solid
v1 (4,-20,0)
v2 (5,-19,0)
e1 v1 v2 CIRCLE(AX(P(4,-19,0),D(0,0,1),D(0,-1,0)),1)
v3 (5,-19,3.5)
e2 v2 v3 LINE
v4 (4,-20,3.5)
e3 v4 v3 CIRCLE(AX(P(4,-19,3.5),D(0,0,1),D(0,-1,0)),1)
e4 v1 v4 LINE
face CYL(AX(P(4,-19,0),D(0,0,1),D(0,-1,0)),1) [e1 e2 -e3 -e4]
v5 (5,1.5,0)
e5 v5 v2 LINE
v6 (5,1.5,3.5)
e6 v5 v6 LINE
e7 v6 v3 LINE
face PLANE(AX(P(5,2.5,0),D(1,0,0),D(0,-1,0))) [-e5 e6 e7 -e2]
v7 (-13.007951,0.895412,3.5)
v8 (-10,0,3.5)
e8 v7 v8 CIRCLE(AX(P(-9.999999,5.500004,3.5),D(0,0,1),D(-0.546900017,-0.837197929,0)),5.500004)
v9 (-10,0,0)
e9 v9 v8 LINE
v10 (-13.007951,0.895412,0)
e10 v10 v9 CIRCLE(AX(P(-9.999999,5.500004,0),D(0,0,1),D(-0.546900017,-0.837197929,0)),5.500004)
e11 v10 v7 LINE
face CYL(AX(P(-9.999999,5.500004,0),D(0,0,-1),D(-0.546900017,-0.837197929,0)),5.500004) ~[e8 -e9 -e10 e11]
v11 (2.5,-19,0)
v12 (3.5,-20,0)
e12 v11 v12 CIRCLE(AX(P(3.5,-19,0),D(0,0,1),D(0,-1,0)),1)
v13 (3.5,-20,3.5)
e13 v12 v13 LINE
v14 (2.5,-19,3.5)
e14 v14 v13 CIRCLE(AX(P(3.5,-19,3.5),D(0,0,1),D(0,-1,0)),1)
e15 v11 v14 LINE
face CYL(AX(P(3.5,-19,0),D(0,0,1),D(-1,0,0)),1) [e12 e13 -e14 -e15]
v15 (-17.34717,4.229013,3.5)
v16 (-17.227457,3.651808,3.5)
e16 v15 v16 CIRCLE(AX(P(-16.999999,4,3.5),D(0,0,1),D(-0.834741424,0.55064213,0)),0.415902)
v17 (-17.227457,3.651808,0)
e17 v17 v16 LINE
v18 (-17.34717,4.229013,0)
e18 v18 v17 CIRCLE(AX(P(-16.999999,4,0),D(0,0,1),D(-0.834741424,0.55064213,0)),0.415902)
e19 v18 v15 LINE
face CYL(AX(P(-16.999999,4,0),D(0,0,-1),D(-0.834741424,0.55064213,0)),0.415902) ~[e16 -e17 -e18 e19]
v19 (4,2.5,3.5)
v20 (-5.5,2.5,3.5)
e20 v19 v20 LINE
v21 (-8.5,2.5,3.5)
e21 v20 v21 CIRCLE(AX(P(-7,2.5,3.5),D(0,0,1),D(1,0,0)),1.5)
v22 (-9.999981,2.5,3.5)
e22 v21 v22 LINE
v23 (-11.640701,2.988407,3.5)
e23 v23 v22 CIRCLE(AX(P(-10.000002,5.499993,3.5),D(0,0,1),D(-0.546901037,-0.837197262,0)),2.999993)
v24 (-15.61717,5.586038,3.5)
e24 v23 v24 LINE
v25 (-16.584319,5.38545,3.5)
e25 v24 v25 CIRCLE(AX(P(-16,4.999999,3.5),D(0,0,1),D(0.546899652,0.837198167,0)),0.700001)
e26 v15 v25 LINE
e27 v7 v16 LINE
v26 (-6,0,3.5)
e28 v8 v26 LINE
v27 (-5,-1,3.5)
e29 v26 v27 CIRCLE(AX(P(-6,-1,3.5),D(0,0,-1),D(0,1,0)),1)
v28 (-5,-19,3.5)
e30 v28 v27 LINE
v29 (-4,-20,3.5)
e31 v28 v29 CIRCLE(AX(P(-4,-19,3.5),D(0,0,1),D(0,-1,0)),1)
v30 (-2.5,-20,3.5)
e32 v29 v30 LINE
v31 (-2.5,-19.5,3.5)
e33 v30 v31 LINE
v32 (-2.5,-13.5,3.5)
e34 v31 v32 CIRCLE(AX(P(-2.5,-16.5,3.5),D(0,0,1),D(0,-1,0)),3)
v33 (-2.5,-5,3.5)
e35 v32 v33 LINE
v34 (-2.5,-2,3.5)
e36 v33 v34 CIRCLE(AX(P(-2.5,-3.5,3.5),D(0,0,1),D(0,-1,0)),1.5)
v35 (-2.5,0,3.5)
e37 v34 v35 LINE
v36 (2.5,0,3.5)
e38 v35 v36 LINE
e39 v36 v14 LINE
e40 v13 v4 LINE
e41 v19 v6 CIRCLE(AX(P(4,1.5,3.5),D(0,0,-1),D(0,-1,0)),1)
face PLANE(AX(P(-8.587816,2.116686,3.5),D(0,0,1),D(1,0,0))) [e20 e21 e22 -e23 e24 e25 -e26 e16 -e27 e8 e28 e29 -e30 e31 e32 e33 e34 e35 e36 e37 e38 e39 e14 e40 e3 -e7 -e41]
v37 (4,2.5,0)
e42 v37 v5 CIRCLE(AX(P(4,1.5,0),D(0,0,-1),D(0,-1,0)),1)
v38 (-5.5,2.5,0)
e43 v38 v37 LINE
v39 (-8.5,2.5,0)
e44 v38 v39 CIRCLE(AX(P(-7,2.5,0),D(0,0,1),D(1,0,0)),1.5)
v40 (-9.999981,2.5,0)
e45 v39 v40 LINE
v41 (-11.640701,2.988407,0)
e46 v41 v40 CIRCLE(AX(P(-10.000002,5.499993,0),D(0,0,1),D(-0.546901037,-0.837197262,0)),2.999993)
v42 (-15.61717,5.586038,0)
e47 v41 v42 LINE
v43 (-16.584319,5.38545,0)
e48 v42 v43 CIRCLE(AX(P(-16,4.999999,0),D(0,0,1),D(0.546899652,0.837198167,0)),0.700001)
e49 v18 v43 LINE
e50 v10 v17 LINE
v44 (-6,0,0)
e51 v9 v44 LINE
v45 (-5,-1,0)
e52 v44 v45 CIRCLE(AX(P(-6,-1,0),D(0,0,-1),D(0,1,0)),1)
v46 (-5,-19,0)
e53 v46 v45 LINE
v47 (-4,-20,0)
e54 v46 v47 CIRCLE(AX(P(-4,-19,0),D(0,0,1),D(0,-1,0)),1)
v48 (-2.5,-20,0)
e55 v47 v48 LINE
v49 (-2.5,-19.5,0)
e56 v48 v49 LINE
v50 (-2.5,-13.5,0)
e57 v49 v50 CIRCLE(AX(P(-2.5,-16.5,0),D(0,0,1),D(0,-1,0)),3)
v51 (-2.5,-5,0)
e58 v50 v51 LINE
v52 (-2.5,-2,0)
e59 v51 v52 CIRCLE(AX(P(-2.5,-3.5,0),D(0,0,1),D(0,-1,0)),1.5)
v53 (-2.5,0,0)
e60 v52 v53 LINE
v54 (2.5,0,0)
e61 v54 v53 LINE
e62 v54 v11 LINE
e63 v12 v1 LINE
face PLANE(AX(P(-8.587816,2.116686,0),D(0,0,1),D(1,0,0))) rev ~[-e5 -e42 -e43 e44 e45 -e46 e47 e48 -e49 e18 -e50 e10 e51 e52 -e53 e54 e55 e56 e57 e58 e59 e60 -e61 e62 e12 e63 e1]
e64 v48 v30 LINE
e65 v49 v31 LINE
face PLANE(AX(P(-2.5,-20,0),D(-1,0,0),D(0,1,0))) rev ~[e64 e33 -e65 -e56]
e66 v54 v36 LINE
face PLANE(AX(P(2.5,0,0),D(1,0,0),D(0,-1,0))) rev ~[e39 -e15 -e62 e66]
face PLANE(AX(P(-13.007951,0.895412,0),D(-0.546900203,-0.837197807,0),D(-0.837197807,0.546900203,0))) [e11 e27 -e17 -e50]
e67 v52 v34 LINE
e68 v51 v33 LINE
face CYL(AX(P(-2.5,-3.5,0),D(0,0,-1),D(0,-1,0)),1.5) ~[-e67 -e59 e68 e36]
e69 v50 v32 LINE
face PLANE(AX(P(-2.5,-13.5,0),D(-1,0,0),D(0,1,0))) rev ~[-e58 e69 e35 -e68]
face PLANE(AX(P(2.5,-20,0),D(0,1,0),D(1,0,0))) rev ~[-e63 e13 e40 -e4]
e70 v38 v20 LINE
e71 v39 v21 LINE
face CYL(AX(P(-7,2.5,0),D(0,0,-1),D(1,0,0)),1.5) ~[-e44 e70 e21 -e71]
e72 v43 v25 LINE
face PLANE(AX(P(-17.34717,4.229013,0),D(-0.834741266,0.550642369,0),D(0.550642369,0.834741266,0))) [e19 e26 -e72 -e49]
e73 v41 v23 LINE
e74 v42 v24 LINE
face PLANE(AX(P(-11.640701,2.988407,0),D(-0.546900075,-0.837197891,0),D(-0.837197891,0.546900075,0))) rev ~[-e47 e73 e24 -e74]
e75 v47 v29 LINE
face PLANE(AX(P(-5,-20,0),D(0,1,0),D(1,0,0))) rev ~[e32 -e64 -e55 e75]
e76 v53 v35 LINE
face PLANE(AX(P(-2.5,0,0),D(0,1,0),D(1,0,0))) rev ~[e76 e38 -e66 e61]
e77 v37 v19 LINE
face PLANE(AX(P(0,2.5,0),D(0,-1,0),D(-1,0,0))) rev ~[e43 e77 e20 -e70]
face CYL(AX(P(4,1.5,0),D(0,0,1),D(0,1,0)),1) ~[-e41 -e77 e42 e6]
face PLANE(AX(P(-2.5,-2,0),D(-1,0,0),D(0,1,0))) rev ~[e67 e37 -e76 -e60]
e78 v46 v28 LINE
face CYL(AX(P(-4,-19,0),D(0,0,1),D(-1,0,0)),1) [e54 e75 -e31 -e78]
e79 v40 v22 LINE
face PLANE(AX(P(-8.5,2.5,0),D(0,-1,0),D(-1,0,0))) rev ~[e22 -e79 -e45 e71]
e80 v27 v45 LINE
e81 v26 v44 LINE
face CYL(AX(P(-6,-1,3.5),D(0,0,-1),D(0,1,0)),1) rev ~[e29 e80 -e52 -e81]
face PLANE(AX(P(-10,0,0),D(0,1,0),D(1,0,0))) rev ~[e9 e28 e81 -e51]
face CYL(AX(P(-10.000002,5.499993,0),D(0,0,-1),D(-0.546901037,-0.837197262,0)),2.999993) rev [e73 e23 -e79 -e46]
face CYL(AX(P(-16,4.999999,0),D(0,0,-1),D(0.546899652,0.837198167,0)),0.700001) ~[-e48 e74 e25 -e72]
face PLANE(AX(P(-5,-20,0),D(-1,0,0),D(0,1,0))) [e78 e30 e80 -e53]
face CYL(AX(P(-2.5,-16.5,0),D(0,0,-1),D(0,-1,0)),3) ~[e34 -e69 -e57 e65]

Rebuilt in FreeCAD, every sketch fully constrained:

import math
import FreeCAD as App
import Part
import Sketcher

V = App.Vector


def edges_at(feature, points):
    """Names of the edges that pass closest to the given points."""
    edges = feature.Shape.Edges
    near = lambda p: min(range(len(edges)), key=lambda i: edges[i].distToShape(Part.Vertex(*p))[0])
    return sorted({f"Edge{near(p) + 1}" for p in points})

doc = App.newDocument("Part")
body = doc.addObject("PartDesign::Body", "Body")

# Sketch on XY plane
sketch1 = body.newObject("Sketcher::SketchObject", "Sketch")
sketch1.AttachmentSupport = (doc.getObject("XY_Plane"), [""])
sketch1.MapMode = "FlatFace"
sketch1.addGeometry(Part.LineSegment(V(-2.5, 0, 0), V(2.5, 0, 0)), False)
sketch1.addGeometry(Part.LineSegment(V(2.5, 0, 0), V(2.5, -20, 0)), False)
sketch1.addGeometry(Part.LineSegment(V(2.5, -20, 0), V(5, -20, 0)), False)
sketch1.addGeometry(Part.LineSegment(V(5, -20, 0), V(5, 2.5, 0)), False)
sketch1.addGeometry(Part.LineSegment(V(5, 2.5, 0), V(-5, 2.5, 0)), False)
sketch1.addGeometry(Part.LineSegment(V(-5, 2.5, 0), V(-5, -20, 0)), False)
sketch1.addGeometry(Part.LineSegment(V(-5, -20, 0), V(-2.5, -20, 0)), False)
sketch1.addGeometry(Part.LineSegment(V(-2.5, -20, 0), V(-2.5, -19.5, 0)), False)
sketch1.addGeometry(Part.ArcOfCircle(Part.Circle(V(-2.5, -16.5, 0), V(0, 0, 1), 3), math.radians(-90), math.radians(90)), False)
sketch1.addGeometry(Part.LineSegment(V(-2.5, -13.5, 0), V(-2.5, -5, 0)), False)
sketch1.addGeometry(Part.ArcOfCircle(Part.Circle(V(-2.5, -3.5, 0), V(0, 0, 1), 1.5), math.radians(-90), math.radians(90)), False)
sketch1.addGeometry(Part.LineSegment(V(-2.5, -2, 0), V(-2.5, 0, 0)), False)
sketch1.addConstraint(Sketcher.Constraint("Coincident", 0, 2, 1, 1))
sketch1.addConstraint(Sketcher.Constraint("Coincident", 1, 2, 2, 1))
sketch1.addConstraint(Sketcher.Constraint("Coincident", 2, 2, 3, 1))
sketch1.addConstraint(Sketcher.Constraint("Coincident", 3, 2, 4, 1))
sketch1.addConstraint(Sketcher.Constraint("Coincident", 4, 2, 5, 1))
sketch1.addConstraint(Sketcher.Constraint("Coincident", 5, 2, 6, 1))
sketch1.addConstraint(Sketcher.Constraint("Coincident", 6, 2, 7, 1))
sketch1.addConstraint(Sketcher.Constraint("Coincident", 7, 2, 8, 1))
sketch1.addConstraint(Sketcher.Constraint("Coincident", 8, 2, 9, 1))
sketch1.addConstraint(Sketcher.Constraint("Coincident", 9, 2, 10, 1))
sketch1.addConstraint(Sketcher.Constraint("Coincident", 10, 2, 11, 1))
sketch1.addConstraint(Sketcher.Constraint("Coincident", 11, 2, 0, 1))
sketch1.addConstraint(Sketcher.Constraint("Horizontal", 0))
sketch1.addConstraint(Sketcher.Constraint("Vertical", 1))
sketch1.addConstraint(Sketcher.Constraint("Horizontal", 2))
sketch1.addConstraint(Sketcher.Constraint("Vertical", 3))
sketch1.addConstraint(Sketcher.Constraint("Horizontal", 4))
sketch1.addConstraint(Sketcher.Constraint("Vertical", 5))
sketch1.addConstraint(Sketcher.Constraint("Horizontal", 6))
sketch1.addConstraint(Sketcher.Constraint("Vertical", 7))
sketch1.addConstraint(Sketcher.Constraint("Vertical", 9))
sketch1.addConstraint(Sketcher.Constraint("Vertical", 11))
sketch1.addConstraint(Sketcher.Constraint("Symmetric", 0, 2, 11, 2, -1, 1))
sketch1.addConstraint(Sketcher.Constraint("Symmetric", 2, 2, 5, 2, -2))
sketch1.addConstraint(Sketcher.Constraint("Vertical", 8, 3, 10, 3))
sketch1.addConstraint(Sketcher.Constraint("Vertical", 10, 3, 6, 2))
sketch1.addConstraint(Sketcher.Constraint("Vertical", 7, 2, 8, 2))
sketch1.addConstraint(Sketcher.Constraint("Vertical", 9, 2, 10, 2))
sketch1.addConstraint(Sketcher.Constraint("Radius", 8, 3.0))
sketch1.addConstraint(Sketcher.Constraint("Radius", 10, 1.5))
sketch1.addConstraint(Sketcher.Constraint("DistanceX", 0, 1, 0, 2, 5.0))
sketch1.addConstraint(Sketcher.Constraint("DistanceX", 4, 2, 4, 1, 10.0))
sketch1.addConstraint(Sketcher.Constraint("DistanceY", 1, 2, 1, 1, 20.0))
sketch1.addConstraint(Sketcher.Constraint("DistanceY", 11, 1, 11, 2, 2.0))
sketch1.addConstraint(Sketcher.Constraint("DistanceY", 3, 1, 3, 2, 22.5))
sketch1.addConstraint(Sketcher.Constraint("DistanceY", 7, 1, 7, 2, 0.5))
pad1 = body.newObject("PartDesign::Pad", "Pad")
pad1.Profile = sketch1
pad1.Length = 3.5

# Sketch on XY plane
sketch2 = body.newObject("Sketcher::SketchObject", "Sketch001")
sketch2.AttachmentSupport = (doc.getObject("XY_Plane"), [""])
sketch2.MapMode = "FlatFace"
sketch2.addGeometry(Part.LineSegment(V(-10, 0, 0), V(0, 0, 0)), False)
sketch2.addGeometry(Part.LineSegment(V(0, 0, 0), V(0, 2.5, 0)), False)
sketch2.addGeometry(Part.LineSegment(V(0, 2.5, 0), V(-5.5, 2.5, 0)), False)
sketch2.addGeometry(Part.ArcOfCircle(Part.Circle(V(-7, 2.5, 0), V(0, 0, 1), 1.5), math.radians(0), math.radians(180)), False)
sketch2.addGeometry(Part.LineSegment(V(-8.5, 2.5, 0), V(-9.999981, 2.5, 0)), False)
sketch2.addGeometry(Part.ArcOfCircle(Part.Circle(V(-10.000002, 5.499993, 0), V(0, 0, 1), 2.999993), math.radians(-123.15467), math.radians(-89.9996)), False)
sketch2.addGeometry(Part.LineSegment(V(-11.640701, 2.988407, 0), V(-15.61717, 5.586038, 0)), False)
sketch2.addGeometry(Part.ArcOfCircle(Part.Circle(V(-16, 4.999999, 0), V(0, 0, 1), 0.700001), math.radians(56.845425), math.radians(146.588778)), False)
sketch2.addGeometry(Part.LineSegment(V(-16.584319, 5.38545, 0), V(-17.34717, 4.229013, 0)), False)
sketch2.addGeometry(Part.ArcOfCircle(Part.Circle(V(-16.999999, 4, 0), V(0, 0, 1), 0.415902), math.radians(146.588923), math.radians(236.845262)), False)
sketch2.addGeometry(Part.LineSegment(V(-17.227457, 3.651808, 0), V(-13.007951, 0.895412, 0)), False)
sketch2.addGeometry(Part.ArcOfCircle(Part.Circle(V(-9.999999, 5.500004, 0), V(0, 0, 1), 5.500004), math.radians(-123.1546), math.radians(-90.000012)), False)
sketch2.addConstraint(Sketcher.Constraint("Coincident", 0, 2, 1, 1))
sketch2.addConstraint(Sketcher.Constraint("Coincident", 1, 2, 2, 1))
sketch2.addConstraint(Sketcher.Constraint("Coincident", 2, 2, 3, 1))
sketch2.addConstraint(Sketcher.Constraint("Coincident", 3, 2, 4, 1))
sketch2.addConstraint(Sketcher.Constraint("Coincident", 4, 2, 5, 2))
sketch2.addConstraint(Sketcher.Constraint("Tangent", 5, 1, 6, 1))
sketch2.addConstraint(Sketcher.Constraint("Tangent", 6, 2, 7, 1))
sketch2.addConstraint(Sketcher.Constraint("Coincident", 7, 2, 8, 1))
sketch2.addConstraint(Sketcher.Constraint("Tangent", 8, 2, 9, 1))
sketch2.addConstraint(Sketcher.Constraint("Coincident", 9, 2, 10, 1))
sketch2.addConstraint(Sketcher.Constraint("Tangent", 10, 2, 11, 1))
sketch2.addConstraint(Sketcher.Constraint("Tangent", 11, 2, 0, 1))
sketch2.addConstraint(Sketcher.Constraint("Horizontal", 0))
sketch2.addConstraint(Sketcher.Constraint("Vertical", 1))
sketch2.addConstraint(Sketcher.Constraint("Horizontal", 2))
sketch2.addConstraint(Sketcher.Constraint("Horizontal", 4))
sketch2.addConstraint(Sketcher.Constraint("Coincident", 0, 2, -1, 1))
sketch2.addConstraint(Sketcher.Constraint("Parallel", 6, 10))
sketch2.addConstraint(Sketcher.Constraint("Horizontal", 3, 3, 1, 2))
sketch2.addConstraint(Sketcher.Constraint("Horizontal", 2, 2, 3, 2))
sketch2.addConstraint(Sketcher.Constraint("Vertical", 5, 3, 11, 2))
sketch2.addConstraint(Sketcher.Constraint("Radius", 3, 1.5))
sketch2.addConstraint(Sketcher.Constraint("Radius", 7, 0.700001))
sketch2.addConstraint(Sketcher.Constraint("DistanceX", 0, 1, 0, 2, 10.0))
sketch2.addConstraint(Sketcher.Constraint("DistanceX", 2, 2, 2, 1, 5.5))
sketch2.addConstraint(Sketcher.Constraint("DistanceY", 1, 1, 1, 2, 2.5))
sketch2.addConstraint(Sketcher.Constraint("DistanceX", 7, 3, -1, 1, 16.0))
sketch2.addConstraint(Sketcher.Constraint("DistanceY", -1, 1, 7, 3, 4.999999))
sketch2.addConstraint(Sketcher.Constraint("DistanceX", 9, 3, -1, 1, 16.999999))
sketch2.addConstraint(Sketcher.Constraint("DistanceY", -1, 1, 9, 3, 4.0))
sketch2.addConstraint(Sketcher.Constraint("DistanceX", 8, 2, 6, 2, 1.73))
sketch2.addConstraint(Sketcher.Constraint("Radius", 5, 2.999993))
sketch2.addConstraint(Sketcher.Constraint("DistanceX", 4, 2, 4, 1, 1.499981))
sketch2.addConstraint(Sketcher.Constraint("DistanceX", 7, 2, -1, 1, 16.584319))
sketch2.addConstraint(Sketcher.Constraint("DistanceY", 9, 2, 9, 3, 0.348192))
pad2 = body.newObject("PartDesign::Pad", "Pad001")
pad2.Profile = sketch2
pad2.Length = 3.5
doc.recompute()

fillet = body.newObject("PartDesign::Fillet", "Fillet")
fillet.Base = (pad2, edges_at(pad2, [(-5, 0, 1.75)]))
fillet.Radius = 1
doc.recompute()

fillet2 = body.newObject("PartDesign::Fillet", "Fillet001")
fillet2.Base = (fillet, edges_at(fillet, [
    (5, 2.5, 1.75),
    (5, -20, 1.75),
    (2.5, -20, 1.75),
    (-5, -20, 1.75),
]))
fillet2.Radius = 1

doc.recompute()
